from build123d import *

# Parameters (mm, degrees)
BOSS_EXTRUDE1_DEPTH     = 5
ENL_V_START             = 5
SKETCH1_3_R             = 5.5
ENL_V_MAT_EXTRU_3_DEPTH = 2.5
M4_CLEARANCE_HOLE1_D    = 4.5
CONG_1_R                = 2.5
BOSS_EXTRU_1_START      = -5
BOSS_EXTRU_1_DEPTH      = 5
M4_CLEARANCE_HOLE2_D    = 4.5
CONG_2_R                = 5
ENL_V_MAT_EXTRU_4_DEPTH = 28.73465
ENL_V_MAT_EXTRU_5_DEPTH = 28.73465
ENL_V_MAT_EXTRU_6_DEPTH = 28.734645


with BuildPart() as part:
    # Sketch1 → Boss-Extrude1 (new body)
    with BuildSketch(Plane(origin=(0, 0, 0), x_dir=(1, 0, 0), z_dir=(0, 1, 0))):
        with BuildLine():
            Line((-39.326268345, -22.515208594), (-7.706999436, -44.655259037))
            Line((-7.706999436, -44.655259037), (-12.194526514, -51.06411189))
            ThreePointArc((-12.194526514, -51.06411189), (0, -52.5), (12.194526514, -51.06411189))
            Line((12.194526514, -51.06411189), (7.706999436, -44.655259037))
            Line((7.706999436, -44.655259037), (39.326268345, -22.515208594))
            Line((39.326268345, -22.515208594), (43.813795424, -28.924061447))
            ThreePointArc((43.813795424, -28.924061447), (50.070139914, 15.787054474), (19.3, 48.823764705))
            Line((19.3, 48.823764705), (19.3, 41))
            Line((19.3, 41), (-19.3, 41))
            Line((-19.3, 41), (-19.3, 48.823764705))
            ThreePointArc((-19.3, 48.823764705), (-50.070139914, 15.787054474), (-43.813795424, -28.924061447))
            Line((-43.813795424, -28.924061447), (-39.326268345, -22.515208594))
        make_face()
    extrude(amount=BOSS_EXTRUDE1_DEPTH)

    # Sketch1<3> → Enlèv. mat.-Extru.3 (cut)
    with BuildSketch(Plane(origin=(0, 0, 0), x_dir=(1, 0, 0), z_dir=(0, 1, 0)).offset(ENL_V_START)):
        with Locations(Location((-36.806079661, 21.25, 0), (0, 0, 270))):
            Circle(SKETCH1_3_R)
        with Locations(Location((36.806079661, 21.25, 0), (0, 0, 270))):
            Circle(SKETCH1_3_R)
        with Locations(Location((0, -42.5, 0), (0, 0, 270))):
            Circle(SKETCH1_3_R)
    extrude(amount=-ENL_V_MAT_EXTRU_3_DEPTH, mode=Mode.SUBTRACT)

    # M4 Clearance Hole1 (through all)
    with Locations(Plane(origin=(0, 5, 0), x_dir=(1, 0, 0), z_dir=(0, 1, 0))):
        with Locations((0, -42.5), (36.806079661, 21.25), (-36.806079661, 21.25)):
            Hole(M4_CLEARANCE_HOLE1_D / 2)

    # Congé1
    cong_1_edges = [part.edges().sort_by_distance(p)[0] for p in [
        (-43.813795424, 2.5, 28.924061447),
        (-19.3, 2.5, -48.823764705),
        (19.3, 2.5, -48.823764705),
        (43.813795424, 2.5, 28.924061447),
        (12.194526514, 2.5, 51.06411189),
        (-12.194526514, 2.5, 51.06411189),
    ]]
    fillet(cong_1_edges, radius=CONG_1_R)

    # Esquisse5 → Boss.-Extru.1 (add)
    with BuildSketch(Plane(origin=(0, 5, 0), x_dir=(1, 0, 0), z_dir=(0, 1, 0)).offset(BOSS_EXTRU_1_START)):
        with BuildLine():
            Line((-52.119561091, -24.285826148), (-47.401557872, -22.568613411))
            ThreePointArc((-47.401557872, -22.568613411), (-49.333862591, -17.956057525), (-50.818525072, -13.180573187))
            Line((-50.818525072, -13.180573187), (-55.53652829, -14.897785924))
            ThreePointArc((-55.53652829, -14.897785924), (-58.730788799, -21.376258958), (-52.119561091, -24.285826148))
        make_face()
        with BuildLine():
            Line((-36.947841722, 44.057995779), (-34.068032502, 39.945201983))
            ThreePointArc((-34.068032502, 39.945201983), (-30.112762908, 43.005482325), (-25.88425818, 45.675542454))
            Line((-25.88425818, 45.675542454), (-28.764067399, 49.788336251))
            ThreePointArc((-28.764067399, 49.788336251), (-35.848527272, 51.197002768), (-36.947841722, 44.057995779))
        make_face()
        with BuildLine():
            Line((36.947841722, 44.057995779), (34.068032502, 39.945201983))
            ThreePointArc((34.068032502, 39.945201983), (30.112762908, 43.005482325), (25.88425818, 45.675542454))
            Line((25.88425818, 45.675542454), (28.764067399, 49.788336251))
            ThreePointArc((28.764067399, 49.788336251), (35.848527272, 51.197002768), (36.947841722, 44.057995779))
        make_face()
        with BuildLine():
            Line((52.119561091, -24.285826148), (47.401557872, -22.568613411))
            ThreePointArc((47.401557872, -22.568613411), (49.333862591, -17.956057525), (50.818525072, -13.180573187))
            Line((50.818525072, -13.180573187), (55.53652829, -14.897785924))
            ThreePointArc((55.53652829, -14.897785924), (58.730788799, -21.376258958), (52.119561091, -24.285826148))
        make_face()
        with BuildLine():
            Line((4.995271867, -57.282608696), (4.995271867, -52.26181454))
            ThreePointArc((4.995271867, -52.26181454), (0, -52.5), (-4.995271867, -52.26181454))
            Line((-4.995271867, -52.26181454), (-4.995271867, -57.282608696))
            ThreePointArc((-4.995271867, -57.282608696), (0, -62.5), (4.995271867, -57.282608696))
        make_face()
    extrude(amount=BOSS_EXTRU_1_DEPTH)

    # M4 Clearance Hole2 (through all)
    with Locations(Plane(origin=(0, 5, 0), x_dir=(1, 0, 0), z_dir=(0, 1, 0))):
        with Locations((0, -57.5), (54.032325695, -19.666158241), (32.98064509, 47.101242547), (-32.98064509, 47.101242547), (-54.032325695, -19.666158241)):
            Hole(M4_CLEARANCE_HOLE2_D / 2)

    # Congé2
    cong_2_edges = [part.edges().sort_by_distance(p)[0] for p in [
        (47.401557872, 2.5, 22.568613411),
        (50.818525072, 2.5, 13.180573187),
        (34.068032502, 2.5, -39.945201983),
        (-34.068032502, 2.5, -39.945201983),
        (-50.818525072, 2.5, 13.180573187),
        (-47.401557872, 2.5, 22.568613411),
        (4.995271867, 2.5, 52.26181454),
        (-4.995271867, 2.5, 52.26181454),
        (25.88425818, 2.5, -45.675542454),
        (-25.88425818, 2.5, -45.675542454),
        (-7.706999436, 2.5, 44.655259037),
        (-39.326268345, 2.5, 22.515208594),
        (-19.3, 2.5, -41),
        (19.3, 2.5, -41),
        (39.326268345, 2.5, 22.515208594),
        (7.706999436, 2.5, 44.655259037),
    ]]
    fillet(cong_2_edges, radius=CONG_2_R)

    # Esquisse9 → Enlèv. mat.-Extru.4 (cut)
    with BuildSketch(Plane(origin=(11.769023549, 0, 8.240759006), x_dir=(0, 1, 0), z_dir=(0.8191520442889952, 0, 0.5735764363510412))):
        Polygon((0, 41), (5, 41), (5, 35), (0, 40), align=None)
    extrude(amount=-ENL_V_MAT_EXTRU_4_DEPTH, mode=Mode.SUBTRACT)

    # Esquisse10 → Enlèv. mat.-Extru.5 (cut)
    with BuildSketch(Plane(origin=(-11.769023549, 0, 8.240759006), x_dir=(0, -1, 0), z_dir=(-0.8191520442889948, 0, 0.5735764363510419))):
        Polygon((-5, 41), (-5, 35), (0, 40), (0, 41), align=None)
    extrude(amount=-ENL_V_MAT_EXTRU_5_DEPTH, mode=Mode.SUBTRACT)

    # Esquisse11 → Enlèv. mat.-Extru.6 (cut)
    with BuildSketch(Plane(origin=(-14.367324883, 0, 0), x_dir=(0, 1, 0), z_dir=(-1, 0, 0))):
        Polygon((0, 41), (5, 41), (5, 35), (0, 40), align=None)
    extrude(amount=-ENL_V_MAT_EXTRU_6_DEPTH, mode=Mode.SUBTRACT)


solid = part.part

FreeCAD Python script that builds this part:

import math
import FreeCAD as App
import Part
import Sketcher
from FreeCAD import Vector
Q = App.Units.Quantity


def edges_at(feature, points):
    """Names of the edges that pass closest to the given points."""
    edges = feature.Shape.Edges
    near = lambda p: min(range(len(edges)), key=lambda i: edges[i].distToShape(Part.Vertex(*p))[0])
    return sorted({f"Edge{near(p) + 1}" for p in points})

doc = App.newDocument("Part")
body = doc.addObject("PartDesign::Body", "Body")

# Sketch on XZ plane
sketch1 = body.newObject("Sketcher::SketchObject", "Sketch")
sketch1.AttachmentSupport = (doc.getObject("XZ_Plane"), [""])
sketch1.MapMode = "FlatFace"
sketch1.addGeometry(Part.LineSegment(Vector(-39, 23, 0), Vector(-8, 45, 0)), False)
sketch1.addGeometry(Part.LineSegment(Vector(-8, 45, 0), Vector(-12, 51, 0)), False)
sketch1.addGeometry(Part.ArcOfCircle(Part.Circle(Vector(0, 0, 0), Vector(0, 0, 1), 53), math.radians(77), math.radians(103)), False)
sketch1.addGeometry(Part.LineSegment(Vector(12, 51, 0), Vector(8, 45, 0)), False)
sketch1.addGeometry(Part.LineSegment(Vector(8, 45, 0), Vector(39, 23, 0)), False)
sketch1.addGeometry(Part.LineSegment(Vector(39, 23, 0), Vector(44, 29, 0)), False)
sketch1.addGeometry(Part.ArcOfCircle(Part.Circle(Vector(0, 0, 0), Vector(0, 0, 1), 53), math.radians(-68), math.radians(33)), False)
sketch1.addGeometry(Part.LineSegment(Vector(19, -49, 0), Vector(19, -41, 0)), False)
sketch1.addGeometry(Part.LineSegment(Vector(19, -41, 0), Vector(-19, -41, 0)), False)
sketch1.addGeometry(Part.LineSegment(Vector(-19, -41, 0), Vector(-19, -49, 0)), False)
sketch1.addGeometry(Part.ArcOfCircle(Part.Circle(Vector(0, 0, 0), Vector(0, 0, 1), 53), math.radians(147), math.radians(248)), False)
sketch1.addGeometry(Part.LineSegment(Vector(-44, 29, 0), Vector(-39, 23, 0)), False)
sketch1.addConstraint(Sketcher.Constraint("Coincident", 0, 2, 1, 1))
sketch1.addConstraint(Sketcher.Constraint("Coincident", 1, 2, 2, 2))
sketch1.addConstraint(Sketcher.Constraint("Coincident", 2, 1, 3, 1))
sketch1.addConstraint(Sketcher.Constraint("Coincident", 3, 2, 4, 1))
sketch1.addConstraint(Sketcher.Constraint("Coincident", 4, 2, 5, 1))
sketch1.addConstraint(Sketcher.Constraint("Coincident", 5, 2, 6, 2))
sketch1.addConstraint(Sketcher.Constraint("Coincident", 6, 1, 7, 1))
sketch1.addConstraint(Sketcher.Constraint("Coincident", 7, 2, 8, 1))
sketch1.addConstraint(Sketcher.Constraint("Coincident", 8, 2, 9, 1))
sketch1.addConstraint(Sketcher.Constraint("Coincident", 9, 2, 10, 2))
sketch1.addConstraint(Sketcher.Constraint("Coincident", 10, 1, 11, 1))
sketch1.addConstraint(Sketcher.Constraint("Coincident", 11, 2, 0, 1))
sketch1.addConstraint(Sketcher.Constraint("Vertical", 7))
sketch1.addConstraint(Sketcher.Constraint("Horizontal", 8))
sketch1.addConstraint(Sketcher.Constraint("Vertical", 9))
sketch1.addConstraint(Sketcher.Constraint("Coincident", 2, 3, -1, 1))
sketch1.addConstraint(Sketcher.Constraint("Coincident", 6, 3, -1, 1))
sketch1.addConstraint(Sketcher.Constraint("Coincident", 10, 3, -1, 1))
sketch1.addConstraint(Sketcher.Constraint("Equal", 2, 6))
sketch1.addConstraint(Sketcher.Constraint("Equal", 6, 10))
sketch1.addConstraint(Sketcher.Constraint("Symmetric", 0, 2, 3, 2, -2))
sketch1.addConstraint(Sketcher.Constraint("Symmetric", 4, 2, 11, 2, -2))
sketch1.addConstraint(Sketcher.Constraint("Perpendicular", 0, 1))
sketch1.addConstraint(Sketcher.Constraint("Perpendicular", 3, 4))
sketch1.addConstraint(Sketcher.Constraint("Perpendicular", 4, 5))
sketch1.addConstraint(Sketcher.Constraint("Parallel", 1, 11))
sketch1.addConstraint(Sketcher.Constraint("Horizontal", 6, 1, 9, 2))
sketch1.addConstraint(Sketcher.Constraint("Equal", 3, 5))
sketch1.addConstraint(Sketcher.Constraint("Radius", 2, 52.5))
sketch1.addConstraint(Sketcher.Constraint("Angle", 0, Q("35 deg")))
sketch1.addConstraint(Sketcher.Constraint("DistanceX", 8, 2, 8, 1, 38.6))
sketch1.addConstraint(Sketcher.Constraint("DistanceY", 7, 2, -1, 1, 41.0))
sketch1.addConstraint(Sketcher.Constraint("Distance", 0, 38.6))
sketch1.addConstraint(Sketcher.Constraint("DistanceX", 0, 2, -1, 1, 7.706999))
pad1 = body.newObject("PartDesign::Pad", "Pad")
pad1.Profile = sketch1
pad1.Length = 5
pad1.Reversed = True

# Sketch on XZ plane
sketch2 = body.newObject("Sketcher::SketchObject", "Sketch001")
sketch2.AttachmentSupport = (doc.getObject("XZ_Plane"), [""])
sketch2.MapMode = "FlatFace"
sketch2.AttachmentOffset = App.Placement(Vector(0, 0, -5), App.Rotation())
sketch2.addGeometry(Part.Circle(Vector(-37, -21, 0), Vector(0, 0, 1), 6), False)
sketch2.addGeometry(Part.Circle(Vector(37, -21, 0), Vector(0, 0, 1), 6), False)
sketch2.addGeometry(Part.Circle(Vector(0, 42, 0), Vector(0, 0, 1), 6), False)
sketch2.addConstraint(Sketcher.Constraint("Equal", 0, 1))
sketch2.addConstraint(Sketcher.Constraint("Equal", 1, 2))
sketch2.addConstraint(Sketcher.Constraint("Symmetric", 0, 3, 1, 3, -2))
sketch2.addConstraint(Sketcher.Constraint("PointOnObject", 2, 3, -2))
sketch2.addConstraint(Sketcher.Constraint("Diameter", 0, 11.0))
sketch2.addConstraint(Sketcher.Constraint("DistanceY", -1, 1, 2, 3, 42.5))
sketch2.addConstraint(Sketcher.Constraint("DistanceY", 0, 3, -1, 1, 21.25))
sketch2.addConstraint(Sketcher.Constraint("DistanceX", 0, 3, -1, 1, 36.80608))
pocket1 = body.newObject("PartDesign::Pocket", "Pocket")
pocket1.Profile = sketch2
pocket1.Length = 2.5
pocket1.Reversed = True

# Sketch on XZ plane
sketch3 = body.newObject("Sketcher::SketchObject", "Sketch002")
sketch3.AttachmentSupport = (doc.getObject("XZ_Plane"), [""])
sketch3.MapMode = "FlatFace"
sketch3.AttachmentOffset = App.Placement(Vector(0, 0, -5), App.Rotation())
sketch3.addGeometry(Part.Circle(Vector(0, 42.5, 0), Vector(0, 0, 1), 2.2), False)
sketch3.addGeometry(Part.Circle(Vector(36.8, -21.2, 0), Vector(0, 0, 1), 2.2), False)
sketch3.addGeometry(Part.Circle(Vector(-36.8, -21.2, 0), Vector(0, 0, 1), 2.2), False)
sketch3.addConstraint(Sketcher.Constraint("Equal", 0, 1))
sketch3.addConstraint(Sketcher.Constraint("Equal", 1, 2))
sketch3.addConstraint(Sketcher.Constraint("Symmetric", 1, 3, 2, 3, -2))
sketch3.addConstraint(Sketcher.Constraint("PointOnObject", 0, 3, -2))
sketch3.addConstraint(Sketcher.Constraint("Diameter", 0, 4.5))
sketch3.addConstraint(Sketcher.Constraint("DistanceY", -1, 1, 0, 3, 42.5))
sketch3.addConstraint(Sketcher.Constraint("DistanceY", 1, 3, -1, 1, 21.25))
sketch3.addConstraint(Sketcher.Constraint("DistanceX", -1, 1, 1, 3, 36.80608))
doc.recompute()
hole = body.newObject("PartDesign::Hole", "Hole")
hole.Profile = sketch3
hole.ThreadType = "None"
hole.Diameter = 4.5
hole.DepthType = "ThroughAll"
hole.Reversed = True
doc.recompute()

fillet = body.newObject("PartDesign::Fillet", "Fillet")
fillet.Base = (hole, edges_at(hole, [
    (-43.814, 2.5, 28.924),
    (-19.3, 2.5, -48.824),
    (19.3, 2.5, -48.824),
    (43.814, 2.5, 28.924),
    (12.195, 2.5, 51.064),
    (-12.195, 2.5, 51.064),
]))
fillet.Radius = 2.5

# Sketch on XZ plane
sketch4 = body.newObject("Sketcher::SketchObject", "Sketch003")
sketch4.AttachmentSupport = (doc.getObject("XZ_Plane"), [""])
sketch4.MapMode = "FlatFace"
sketch4.addGeometry(Part.LineSegment(Vector(-52, 24, 0), Vector(-47, 23, 0)), False)
sketch4.addGeometry(Part.ArcOfCircle(Part.Circle(Vector(0, 0, 0), Vector(0, 0, 1), 53), math.radians(154.54), math.radians(165.46)), False)
sketch4.addGeometry(Part.LineSegment(Vector(-51, 13, 0), Vector(-56, 15, 0)), False)
sketch4.addGeometry(Part.ArcOfCircle(Part.Circle(Vector(-54, 20, 0), Vector(0, 0, 1), 5), math.radians(68), math.radians(252)), False)
sketch4.addGeometry(Part.LineSegment(Vector(-37, -44, 0), Vector(-34, -40, 0)), False)
sketch4.addGeometry(Part.ArcOfCircle(Part.Circle(Vector(0, 0, 0), Vector(0, 0, 1), 53), math.radians(-130.46), math.radians(-119.54)), False)
sketch4.addGeometry(Part.LineSegment(Vector(-26, -46, 0), Vector(-29, -50, 0)), False)
sketch4.addGeometry(Part.ArcOfCircle(Part.Circle(Vector(-33, -47, 0), Vector(0, 0, 1), 5), math.radians(143), math.radians(327)), False)
sketch4.addGeometry(Part.LineSegment(Vector(34, -40, 0), Vector(37, -44, 0)), False)
sketch4.addGeometry(Part.ArcOfCircle(Part.Circle(Vector(33, -47, 0), Vector(0, 0, 1), 5), math.radians(-147), math.radians(37)), False)
sketch4.addGeometry(Part.LineSegment(Vector(29, -50, 0), Vector(26, -46, 0)), False)
sketch4.addGeometry(Part.ArcOfCircle(Part.Circle(Vector(0, 0, 0), Vector(0, 0, 1), 53), math.radians(-60.46), math.radians(-49.54)), False)
sketch4.addGeometry(Part.LineSegment(Vector(47, 23, 0), Vector(52, 24, 0)), False)
sketch4.addGeometry(Part.ArcOfCircle(Part.Circle(Vector(54, 20, 0), Vector(0, 0, 1), 5), math.radians(-72), math.radians(112)), False)
sketch4.addGeometry(Part.LineSegment(Vector(56, 15, 0), Vector(51, 13, 0)), False)
sketch4.addGeometry(Part.ArcOfCircle(Part.Circle(Vector(0, 0, 0), Vector(0, 0, 1), 53), math.radians(14.54), math.radians(25.46)), False)
sketch4.addGeometry(Part.LineSegment(Vector(5, 57, 0), Vector(5, 52, 0)), False)
sketch4.addGeometry(Part.ArcOfCircle(Part.Circle(Vector(0, 0, 0), Vector(0, 0, 1), 53), math.radians(84.54), math.radians(95.46)), False)
sketch4.addGeometry(Part.LineSegment(Vector(-5, 52, 0), Vector(-5, 57, 0)), False)
sketch4.addGeometry(Part.ArcOfCircle(Part.Circle(Vector(0, 58, 0), Vector(0, 0, 1), 5), math.radians(-2), math.radians(182)), False)
sketch4.addConstraint(Sketcher.Constraint("Coincident", 0, 2, 1, 1))
sketch4.addConstraint(Sketcher.Constraint("Coincident", 1, 2, 2, 1))
sketch4.addConstraint(Sketcher.Constraint("Coincident", 2, 2, 3, 2))
sketch4.addConstraint(Sketcher.Constraint("Coincident", 3, 1, 0, 1))
sketch4.addConstraint(Sketcher.Constraint("Coincident", 4, 2, 5, 1))
sketch4.addConstraint(Sketcher.Constraint("Coincident", 5, 2, 6, 1))
sketch4.addConstraint(Sketcher.Constraint("Coincident", 6, 2, 7, 2))
sketch4.addConstraint(Sketcher.Constraint("Coincident", 7, 1, 4, 1))
sketch4.addConstraint(Sketcher.Constraint("Coincident", 8, 2, 9, 2))
sketch4.addConstraint(Sketcher.Constraint("Coincident", 9, 1, 10, 1))
sketch4.addConstraint(Sketcher.Constraint("Coincident", 10, 2, 11, 1))
sketch4.addConstraint(Sketcher.Constraint("Coincident", 11, 2, 8, 1))
sketch4.addConstraint(Sketcher.Constraint("Coincident", 12, 2, 13, 2))
sketch4.addConstraint(Sketcher.Constraint("Coincident", 13, 1, 14, 1))
sketch4.addConstraint(Sketcher.Constraint("Coincident", 14, 2, 15, 1))
sketch4.addConstraint(Sketcher.Constraint("Coincident", 15, 2, 12, 1))
sketch4.addConstraint(Sketcher.Constraint("Coincident", 16, 2, 17, 1))
sketch4.addConstraint(Sketcher.Constraint("Coincident", 17, 2, 18, 1))
sketch4.addConstraint(Sketcher.Constraint("Coincident", 18, 2, 19, 2))
sketch4.addConstraint(Sketcher.Constraint("Coincident", 19, 1, 16, 1))
sketch4.addConstraint(Sketcher.Constraint("Vertical", 16))
sketch4.addConstraint(Sketcher.Constraint("Vertical", 18))
sketch4.addConstraint(Sketcher.Constraint("Coincident", 1, 3, -1, 1))
sketch4.addConstraint(Sketcher.Constraint("Coincident", 5, 3, -1, 1))
sketch4.addConstraint(Sketcher.Constraint("Coincident", 11, 3, -1, 1))
sketch4.addConstraint(Sketcher.Constraint("Coincident", 15, 3, -1, 1))
sketch4.addConstraint(Sketcher.Constraint("Coincident", 17, 3, -1, 1))
sketch4.addConstraint(Sketcher.Constraint("Equal", 1, 5))
sketch4.addConstraint(Sketcher.Constraint("Equal", 3, 7))
sketch4.addConstraint(Sketcher.Constraint("Equal", 7, 9))
sketch4.addConstraint(Sketcher.Constraint("Equal", 5, 11))
sketch4.addConstraint(Sketcher.Constraint("Equal", 9, 13))
sketch4.addConstraint(Sketcher.Constraint("Equal", 11, 15))
sketch4.addConstraint(Sketcher.Constraint("Equal", 15, 17))
sketch4.addConstraint(Sketcher.Constraint("Equal", 13, 19))
sketch4.addConstraint(Sketcher.Constraint("Symmetric", 7, 3, 9, 3, -2))
sketch4.addConstraint(Sketcher.Constraint("Symmetric", 3, 3, 13, 3, -2))
sketch4.addConstraint(Sketcher.Constraint("Symmetric", 18, 2, 19, 1, -2))
sketch4.addConstraint(Sketcher.Constraint("Parallel", 0, 2))
sketch4.addConstraint(Sketcher.Constraint("Parallel", 4, 6))
sketch4.addConstraint(Sketcher.Constraint("Parallel", 8, 10))
sketch4.addConstraint(Sketcher.Constraint("Parallel", 12, 14))
sketch4.addConstraint(Sketcher.Constraint("Horizontal", 7, 1, 8, 2))
sketch4.addConstraint(Sketcher.Constraint("Horizontal", 6, 2, 9, 1))
sketch4.addConstraint(Sketcher.Constraint("Horizontal", 5, 2, 10, 2))
sketch4.addConstraint(Sketcher.Constraint("Horizontal", 3, 1, 12, 2))
sketch4.addConstraint(Sketcher.Constraint("Horizontal", 2, 2, 13, 1))
sketch4.addConstraint(Sketcher.Constraint("Horizontal", 1, 2, 14, 2))
sketch4.addConstraint(Sketcher.Constraint("Equal", 0, 2))
sketch4.addConstraint(Sketcher.Constraint("Equal", 2, 4))
sketch4.addConstraint(Sketcher.Constraint("Equal", 4, 6))
sketch4.addConstraint(Sketcher.Constraint("Radius", 3, 5.0))
sketch4.addConstraint(Sketcher.Constraint("Radius", 1, 52.5))
sketch4.addConstraint(Sketcher.Constraint("Angle", 0, Q("-20 deg")))
sketch4.addConstraint(Sketcher.Constraint("Angle", 4, Q("55 deg")))
sketch4.addConstraint(Sketcher.Constraint("DistanceY", -1, 1, 19, 3, 57.5))
sketch4.addConstraint(Sketcher.Constraint("DistanceY", 4, 2, -1, 1, 39.945202))
sketch4.addConstraint(Sketcher.Constraint("DistanceY", 7, 3, 3, 3, 66.767401))
sketch4.addConstraint(Sketcher.Constraint("DistanceX", 3, 3, 1, 2, 3.213801))
sketch4.addConstraint(Sketcher.Constraint("DistanceY", 7, 3, 5, 2, 1.4257))
sketch4.addConstraint(Sketcher.Constraint("DistanceY", 16, 2, 16, 1, 5.020794))
sketch4.addConstraint(Sketcher.Constraint("DistanceY", -1, 1, 3, 3, 19.666158))
pad2 = body.newObject("PartDesign::Pad", "Pad001")
pad2.Profile = sketch4
pad2.Length = 5
pad2.Reversed = True

# Sketch on XZ plane
sketch5 = body.newObject("Sketcher::SketchObject", "Sketch004")
sketch5.AttachmentSupport = (doc.getObject("XZ_Plane"), [""])
sketch5.MapMode = "FlatFace"
sketch5.AttachmentOffset = App.Placement(Vector(0, 0, -5), App.Rotation())
sketch5.addGeometry(Part.Circle(Vector(0, 57.5, 0), Vector(0, 0, 1), 2.2), False)
sketch5.addGeometry(Part.Circle(Vector(54, 19.7, 0), Vector(0, 0, 1), 2.2), False)
sketch5.addGeometry(Part.Circle(Vector(33, -47.1, 0), Vector(0, 0, 1), 2.2), False)
sketch5.addGeometry(Part.Circle(Vector(-33, -47.1, 0), Vector(0, 0, 1), 2.2), False)
sketch5.addGeometry(Part.Circle(Vector(-54, 19.7, 0), Vector(0, 0, 1), 2.2), False)
sketch5.addConstraint(Sketcher.Constraint("Equal", 0, 1))
sketch5.addConstraint(Sketcher.Constraint("Equal", 1, 2))
sketch5.addConstraint(Sketcher.Constraint("Equal", 2, 3))
sketch5.addConstraint(Sketcher.Constraint("Equal", 3, 4))
sketch5.addConstraint(Sketcher.Constraint("Symmetric", 2, 3, 3, 3, -2))
sketch5.addConstraint(Sketcher.Constraint("Symmetric", 1, 3, 4, 3, -2))
sketch5.addConstraint(Sketcher.Constraint("PointOnObject", 0, 3, -2))
sketch5.addConstraint(Sketcher.Constraint("Diameter", 0, 4.5))
sketch5.addConstraint(Sketcher.Constraint("DistanceY", -1, 1, 0, 3, 57.5))
sketch5.addConstraint(Sketcher.Constraint("DistanceY", 2, 3, 1, 3, 66.767401))
sketch5.addConstraint(Sketcher.Constraint("DistanceY", -1, 1, 1, 3, 19.666158))
sketch5.addConstraint(Sketcher.Constraint("DistanceX", 2, 3, 1, 3, 21.051681))
sketch5.addConstraint(Sketcher.Constraint("DistanceX", 3, 3, 2, 3, 65.96129))
doc.recompute()
hole2 = body.newObject("PartDesign::Hole", "Hole001")
hole2.Profile = sketch5
hole2.ThreadType = "None"
hole2.Diameter = 4.5
hole2.DepthType = "ThroughAll"
hole2.Reversed = True
doc.recompute()

fillet2 = body.newObject("PartDesign::Fillet", "Fillet001")
fillet2.Base = (hole2, edges_at(hole2, [
    (47.402, 2.5, 22.569),
    (50.819, 2.5, 13.181),
    (34.068, 2.5, -39.945),
    (-34.068, 2.5, -39.945),
    (-50.819, 2.5, 13.181),
    (-47.402, 2.5, 22.569),
    (4.995, 2.5, 52.262),
    (-4.995, 2.5, 52.262),
    (25.884, 2.5, -45.676),
    (-25.884, 2.5, -45.676),
    (-7.707, 2.5, 44.655),
    (-39.326, 2.5, 22.515),
    (-19.3, 2.5, -41),
    (19.3, 2.5, -41),
    (39.326, 2.5, 22.515),
    (7.707, 2.5, 44.655),
]))
fillet2.Radius = 5

# Sketch on an angled plane
sketch6 = body.newObject("Sketcher::SketchObject", "Sketch005")
sketch6.Placement = App.Placement(Vector(11.769024, 0, 8.240759), App.Rotation(Vector(0, 1, 0), Vector(-0.573576436, 0, 0.819152044), Vector(0.819152044, 0, 0.573576436), "ZXY"))
sketch6.addGeometry(Part.LineSegment(Vector(5, 41, 0), Vector(0, 41, 0)), False)
sketch6.addGeometry(Part.LineSegment(Vector(0, 41, 0), Vector(0, 40, 0)), False)
sketch6.addGeometry(Part.LineSegment(Vector(0, 40, 0), Vector(5, 35, 0)), False)
sketch6.addGeometry(Part.LineSegment(Vector(5, 35, 0), Vector(5, 41, 0)), False)
sketch6.addConstraint(Sketcher.Constraint("Coincident", 0, 2, 1, 1))
sketch6.addConstraint(Sketcher.Constraint("Coincident", 1, 2, 2, 1))
sketch6.addConstraint(Sketcher.Constraint("Coincident", 2, 2, 3, 1))
sketch6.addConstraint(Sketcher.Constraint("Coincident", 3, 2, 0, 1))
sketch6.addConstraint(Sketcher.Constraint("Horizontal", 0))
sketch6.addConstraint(Sketcher.Constraint("Vertical", 1))
sketch6.addConstraint(Sketcher.Constraint("Vertical", 3))
sketch6.addConstraint(Sketcher.Constraint("PointOnObject", 0, 2, -2))
sketch6.addConstraint(Sketcher.Constraint("DistanceX", 0, 2, 0, 1, 5.0))
sketch6.addConstraint(Sketcher.Constraint("DistanceY", 1, 2, 1, 1, 1.0))
sketch6.addConstraint(Sketcher.Constraint("DistanceY", 3, 1, 3, 2, 6.0))
sketch6.addConstraint(Sketcher.Constraint("DistanceY", -1, 1, 0, 2, 41.0))
pocket2 = body.newObject("PartDesign::Pocket", "Pocket001")
pocket2.Profile = sketch6
pocket2.Length = 28.73465

# Sketch on an angled plane
sketch7 = body.newObject("Sketcher::SketchObject", "Sketch006")
sketch7.Placement = App.Placement(Vector(-11.769024, 0, 8.240759), App.Rotation(Vector(0, -1, 0), Vector(0.573576436, 0, 0.819152044), Vector(-0.819152044, 0, 0.573576436), "ZXY"))
sketch7.addGeometry(Part.LineSegment(Vector(-5, 41, 0), Vector(-5, 35, 0)), False)
sketch7.addGeometry(Part.LineSegment(Vector(-5, 35, 0), Vector(0, 40, 0)), False)
sketch7.addGeometry(Part.LineSegment(Vector(0, 40, 0), Vector(0, 41, 0)), False)
sketch7.addGeometry(Part.LineSegment(Vector(0, 41, 0), Vector(-5, 41, 0)), False)
sketch7.addConstraint(Sketcher.Constraint("Coincident", 0, 2, 1, 1))
sketch7.addConstraint(Sketcher.Constraint("Coincident", 1, 2, 2, 1))
sketch7.addConstraint(Sketcher.Constraint("Coincident", 2, 2, 3, 1))
sketch7.addConstraint(Sketcher.Constraint("Coincident", 3, 2, 0, 1))
sketch7.addConstraint(Sketcher.Constraint("Vertical", 0))
sketch7.addConstraint(Sketcher.Constraint("Vertical", 2))
sketch7.addConstraint(Sketcher.Constraint("Horizontal", 3))
sketch7.addConstraint(Sketcher.Constraint("PointOnObject", 1, 2, -2))
sketch7.addConstraint(Sketcher.Constraint("DistanceX", 3, 2, 3, 1, 5.0))
sketch7.addConstraint(Sketcher.Constraint("DistanceY", 0, 2, 0, 1, 6.0))
sketch7.addConstraint(Sketcher.Constraint("DistanceY", 2, 1, 2, 2, 1.0))
sketch7.addConstraint(Sketcher.Constraint("DistanceY", -1, 1, 0, 2, 35.0))
pocket3 = body.newObject("PartDesign::Pocket", "Pocket002")
pocket3.Profile = sketch7
pocket3.Length = 28.73465

# Sketch on YZ plane
sketch8 = body.newObject("Sketcher::SketchObject", "Sketch007")
sketch8.AttachmentSupport = (doc.getObject("YZ_Plane"), [""])
sketch8.MapMode = "FlatFace"
sketch8.AttachmentOffset = App.Placement(Vector(0, 0, -14.367325), App.Rotation())
sketch8.addGeometry(Part.LineSegment(Vector(5, -41, 0), Vector(0, -41, 0)), False)
sketch8.addGeometry(Part.LineSegment(Vector(0, -41, 0), Vector(0, -40, 0)), False)
sketch8.addGeometry(Part.LineSegment(Vector(0, -40, 0), Vector(5, -35, 0)), False)
sketch8.addGeometry(Part.LineSegment(Vector(5, -35, 0), Vector(5, -41, 0)), False)
sketch8.addConstraint(Sketcher.Constraint("Coincident", 0, 2, 1, 1))
sketch8.addConstraint(Sketcher.Constraint("Coincident", 1, 2, 2, 1))
sketch8.addConstraint(Sketcher.Constraint("Coincident", 2, 2, 3, 1))
sketch8.addConstraint(Sketcher.Constraint("Coincident", 3, 2, 0, 1))
sketch8.addConstraint(Sketcher.Constraint("Horizontal", 0))
sketch8.addConstraint(Sketcher.Constraint("Vertical", 1))
sketch8.addConstraint(Sketcher.Constraint("Vertical", 3))
sketch8.addConstraint(Sketcher.Constraint("PointOnObject", 0, 2, -2))
sketch8.addConstraint(Sketcher.Constraint("DistanceX", 0, 2, 0, 1, 5.0))
sketch8.addConstraint(Sketcher.Constraint("DistanceY", 1, 1, 1, 2, 1.0))
sketch8.addConstraint(Sketcher.Constraint("DistanceY", 3, 2, 3, 1, 6.0))
sketch8.addConstraint(Sketcher.Constraint("DistanceY", 0, 2, -1, 1, 41.0))
pocket4 = body.newObject("PartDesign::Pocket", "Pocket003")
pocket4.Profile = sketch8
pocket4.Length = 28.734645
pocket4.Reversed = True

doc.recompute()
